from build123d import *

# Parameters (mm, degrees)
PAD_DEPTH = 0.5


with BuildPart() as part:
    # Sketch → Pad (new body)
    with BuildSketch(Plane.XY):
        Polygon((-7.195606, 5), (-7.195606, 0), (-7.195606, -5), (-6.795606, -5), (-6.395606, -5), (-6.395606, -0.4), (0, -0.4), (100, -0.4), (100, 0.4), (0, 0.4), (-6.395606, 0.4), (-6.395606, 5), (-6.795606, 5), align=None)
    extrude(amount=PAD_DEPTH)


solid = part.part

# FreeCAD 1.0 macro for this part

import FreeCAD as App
import Part
import Sketcher

V = App.Vector


def add_polygon(sketch, points):
    """Adds a closed chain of lines whose ends are joined by coincident constraints."""
    first, n = sketch.GeometryCount, len(points)
    for a, b in zip(points, points[1:] + points[:1]):
        sketch.addGeometry(Part.LineSegment(App.Vector(*a, 0), App.Vector(*b, 0)), False)
    for i in range(n):
        sketch.addConstraint(Sketcher.Constraint("Coincident", first + i, 2, first + (i + 1) % n, 1))

doc = App.newDocument("Part")
params = doc.addObject("Spreadsheet::Sheet", "Params")
for row, (alias, value) in enumerate([
    ("sketch1_height", "10 mm"),
    ("sketch1_width", "0.8 mm"),
    ("pad1_length", "0.5 mm"),
], start=1):
    params.set(f"A{row}", alias)
    params.set(f"B{row}", "=" + value)
    params.setAlias(f"B{row}", alias)

body = doc.addObject("PartDesign::Body", "Body")

# Sketch on XY plane
sketch1 = doc.addObject("Sketcher::SketchObject", "Sketch")
body.addObject(sketch1)
sketch1.AttachmentSupport = (doc.XY_Plane, [""])
sketch1.MapMode = "FlatFace"
add_polygon(sketch1, [(-7.195606, 5), (-7.195606, -5), (-6.395606, -5), (-6.395606, -0.4), (100, -0.4), (100, 0.4), (-6.395606, 0.4), (-6.395606, 5)])  # lines 0-7
sketch1.addConstraint(Sketcher.Constraint("Vertical", 0))
sketch1.addConstraint(Sketcher.Constraint("Horizontal", 1))
sketch1.addConstraint(Sketcher.Constraint("Vertical", 2))
sketch1.addConstraint(Sketcher.Constraint("Horizontal", 3))
sketch1.addConstraint(Sketcher.Constraint("Vertical", 4))
sketch1.addConstraint(Sketcher.Constraint("Horizontal", 5))
sketch1.addConstraint(Sketcher.Constraint("Vertical", 6))
sketch1.addConstraint(Sketcher.Constraint("Horizontal", 7))
sketch1.addConstraint(Sketcher.Constraint("Symmetric", 2, 2, 5, 2, -1))
sketch1.addConstraint(Sketcher.Constraint("Equal", 7, 4))
sketch1.addConstraint(Sketcher.Constraint("Equal", 2, 6))
sketch1.addConstraint(Sketcher.Constraint("DistanceY", 0, 2, 0, 1, 10.0))
sketch1.addConstraint(Sketcher.Constraint("DistanceX", 1, 1, 1, 2, 0.8))
sketch1.addConstraint(Sketcher.Constraint("DistanceX", -1, 1, 3, 2, 100.0))
sketch1.addConstraint(Sketcher.Constraint("DistanceX", 3, 1, 3, 2, 106.395606))
sketch1.setExpression("Constraints[19]", "Params.sketch1_height")
sketch1.setExpression("Constraints[20]", "Params.sketch1_width")
pad1 = doc.addObject("PartDesign::Pad", "Pad")
body.addObject(pad1)
pad1.Profile = sketch1
pad1.setExpression("Length", "Params.pad1_length")

doc.recompute()
